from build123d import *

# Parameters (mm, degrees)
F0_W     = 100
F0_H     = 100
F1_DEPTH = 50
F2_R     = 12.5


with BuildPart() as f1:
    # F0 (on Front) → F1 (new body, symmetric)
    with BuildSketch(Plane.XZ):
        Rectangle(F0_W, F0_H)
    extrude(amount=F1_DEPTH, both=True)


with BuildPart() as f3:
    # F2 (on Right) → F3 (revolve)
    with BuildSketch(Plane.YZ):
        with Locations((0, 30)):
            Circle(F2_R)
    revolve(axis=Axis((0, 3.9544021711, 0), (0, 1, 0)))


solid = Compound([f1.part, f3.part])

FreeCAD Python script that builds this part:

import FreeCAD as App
import Part
import Sketcher


def add_polygon(sketch, points):
    """Adds a closed chain of lines whose ends are joined by coincident constraints."""
    first, n = sketch.GeometryCount, len(points)
    for a, b in zip(points, points[1:] + points[:1]):
        sketch.addGeometry(Part.LineSegment(App.Vector(*a, 0), App.Vector(*b, 0)), False)
    for i in range(n):
        sketch.addConstraint(Sketcher.Constraint("Coincident", first + i, 2, first + (i + 1) % n, 1))

doc = App.newDocument("Part")
params = doc.addObject("Spreadsheet::Sheet", "Params")
for row, (alias, value) in enumerate([
    ("sketch1_width", "100 mm"),
    ("pad1_length", "100 mm"),
    ("sketch2_diameter", "25 mm"),
    ("revolution_angle", "360 deg"),
], start=1):
    params.set(f"A{row}", alias)
    params.set(f"B{row}", "=" + value)
    params.setAlias(f"B{row}", alias)

body = doc.addObject("PartDesign::Body", "Body")

sketch1 = doc.addObject("Sketcher::SketchObject", "Sketch")
body.addObject(sketch1)
sketch1.AttachmentSupport = (doc.XZ_Plane, [""])
sketch1.MapMode = "FlatFace"
add_polygon(sketch1, [(-50, 50), (-50, -50), (50, -50), (50, 50)])
sketch1.addConstraint(Sketcher.Constraint("Vertical", 0))
sketch1.addConstraint(Sketcher.Constraint("Horizontal", 1))
sketch1.addConstraint(Sketcher.Constraint("Vertical", 2))
sketch1.addConstraint(Sketcher.Constraint("Horizontal", 3))
sketch1.addConstraint(Sketcher.Constraint("Symmetric", 0, 2, 2, 2, -1, 1))
sketch1.addConstraint(Sketcher.Constraint("Equal", 3, 0))
sketch1.addConstraint(Sketcher.Constraint("DistanceX", 1, 1, 1, 2, 100.0))
sketch1.setExpression("Constraints[10]", "Params.sketch1_width")
pad1 = doc.addObject("PartDesign::Pad", "Pad")
body.addObject(pad1)
pad1.Profile = sketch1
pad1.setExpression("Length", "Params.pad1_length")
pad1.Midplane = True
body2 = doc.addObject("PartDesign::Body", "Body001")

sketch2 = doc.addObject("Sketcher::SketchObject", "Sketch001")
body2.addObject(sketch2)
sketch2.AttachmentSupport = (doc.getObject("YZ_Plane001"), [""])
sketch2.MapMode = "FlatFace"
sketch2.addGeometry(Part.Circle(App.Vector(0, 30, 0), App.Vector(0, 0, 1), 12), False)
sketch2.addConstraint(Sketcher.Constraint("PointOnObject", 0, 3, -2))
sketch2.addConstraint(Sketcher.Constraint("Diameter", 0, 25.0))
sketch2.addConstraint(Sketcher.Constraint("DistanceY", -1, 1, 0, 3, 30.0))
sketch2.setExpression("Constraints[1]", "Params.sketch2_diameter")
revolution = doc.addObject("PartDesign::Revolution", "Revolution")
body2.addObject(revolution)
revolution.Profile = sketch2
revolution.ReferenceAxis = (sketch2, ["H_Axis"])
revolution.setExpression("Angle", "Params.revolution_angle")

doc.recompute()
